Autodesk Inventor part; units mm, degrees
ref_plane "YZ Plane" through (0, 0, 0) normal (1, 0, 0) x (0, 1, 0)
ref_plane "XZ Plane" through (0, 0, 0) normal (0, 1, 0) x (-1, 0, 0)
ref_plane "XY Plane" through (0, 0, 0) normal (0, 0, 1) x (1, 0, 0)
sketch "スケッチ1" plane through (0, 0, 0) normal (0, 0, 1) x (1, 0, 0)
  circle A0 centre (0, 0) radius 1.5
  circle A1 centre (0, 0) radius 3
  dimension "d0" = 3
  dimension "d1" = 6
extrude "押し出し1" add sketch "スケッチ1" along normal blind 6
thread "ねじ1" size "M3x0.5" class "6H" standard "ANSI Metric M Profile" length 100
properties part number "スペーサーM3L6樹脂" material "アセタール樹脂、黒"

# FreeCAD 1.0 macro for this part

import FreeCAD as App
import Part
import Sketcher
from FreeCAD import Vector
Q = App.Units.Quantity

doc = App.newDocument("Part")
body = doc.addObject("PartDesign::Body", "Body")

sketch1 = doc.addObject("Sketcher::SketchObject", "Sketch")
body.addObject(sketch1)
sketch1.AttachmentSupport = (doc.XY_Plane, [""])
sketch1.MapMode = "FlatFace"
sketch1.addGeometry([
    Part.Circle(Vector(0, 0, 0), Vector(0, 0, 1), 3),
    Part.Circle(Vector(0, 0, 0), Vector(0, 0, 1), 1.5),
], False)
sketch1.addConstraint([
    Sketcher.Constraint("Coincident", 0, 3, -1, 1),
    Sketcher.Constraint("Coincident", 1, 3, -1, 1),
    Sketcher.Constraint("Diameter", 0, Q("6 mm")),
    Sketcher.Constraint("Diameter", 1, Q("3 mm")),
])
pad1 = doc.addObject("PartDesign::Pad", "Pad")
body.addObject(pad1)
pad1.Profile = sketch1
pad1.Length = 6

doc.recompute()
